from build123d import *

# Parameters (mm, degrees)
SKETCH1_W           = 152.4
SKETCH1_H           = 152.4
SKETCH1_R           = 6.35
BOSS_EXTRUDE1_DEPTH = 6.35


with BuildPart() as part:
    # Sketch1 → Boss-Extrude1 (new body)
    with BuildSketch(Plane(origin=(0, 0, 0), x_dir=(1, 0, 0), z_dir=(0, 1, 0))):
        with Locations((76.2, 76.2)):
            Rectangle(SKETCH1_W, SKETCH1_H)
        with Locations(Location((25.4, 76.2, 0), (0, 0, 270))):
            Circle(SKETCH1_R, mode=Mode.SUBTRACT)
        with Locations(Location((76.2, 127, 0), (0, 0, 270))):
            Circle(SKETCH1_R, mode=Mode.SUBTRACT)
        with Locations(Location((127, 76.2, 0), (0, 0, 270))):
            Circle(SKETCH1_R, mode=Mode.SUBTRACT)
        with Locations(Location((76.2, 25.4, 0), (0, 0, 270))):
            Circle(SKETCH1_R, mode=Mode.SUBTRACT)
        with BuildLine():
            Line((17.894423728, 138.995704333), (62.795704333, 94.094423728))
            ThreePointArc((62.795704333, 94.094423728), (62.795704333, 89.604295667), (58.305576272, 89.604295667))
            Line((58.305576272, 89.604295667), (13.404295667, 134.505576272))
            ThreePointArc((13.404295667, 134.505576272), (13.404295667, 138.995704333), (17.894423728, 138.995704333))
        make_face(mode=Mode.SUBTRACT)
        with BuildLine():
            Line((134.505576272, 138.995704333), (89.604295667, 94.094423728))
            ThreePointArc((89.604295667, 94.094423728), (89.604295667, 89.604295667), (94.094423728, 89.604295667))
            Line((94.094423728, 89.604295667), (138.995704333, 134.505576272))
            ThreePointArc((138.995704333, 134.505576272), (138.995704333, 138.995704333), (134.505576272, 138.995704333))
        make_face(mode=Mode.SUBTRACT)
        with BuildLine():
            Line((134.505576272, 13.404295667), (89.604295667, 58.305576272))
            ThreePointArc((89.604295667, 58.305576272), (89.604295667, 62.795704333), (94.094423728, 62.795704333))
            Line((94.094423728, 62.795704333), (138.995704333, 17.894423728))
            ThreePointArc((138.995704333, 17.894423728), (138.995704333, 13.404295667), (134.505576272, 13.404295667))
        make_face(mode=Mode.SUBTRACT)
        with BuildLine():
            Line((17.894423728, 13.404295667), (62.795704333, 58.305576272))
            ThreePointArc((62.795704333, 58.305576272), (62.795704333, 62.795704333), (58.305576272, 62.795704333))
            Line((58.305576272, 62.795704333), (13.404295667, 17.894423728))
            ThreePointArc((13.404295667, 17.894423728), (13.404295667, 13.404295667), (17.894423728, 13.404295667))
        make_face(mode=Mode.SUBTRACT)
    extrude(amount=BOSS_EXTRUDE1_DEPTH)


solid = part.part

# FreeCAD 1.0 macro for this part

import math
import FreeCAD as App
import Part
import Sketcher

V = App.Vector
Q = App.Units.Quantity

doc = App.newDocument("Part")
body = doc.addObject("PartDesign::Body", "Body")

sketch1 = body.newObject("Sketcher::SketchObject", "Sketch")
sketch1.AttachmentSupport = (doc.getObject("XZ_Plane"), [""])
sketch1.MapMode = "FlatFace"
sketch1.addGeometry([
    Part.LineSegment(V(0, -152.4, 0), V(0, 0, 0)),
    Part.LineSegment(V(0, 0, 0), V(152.4, 0, 0)),
    Part.LineSegment(V(152.4, 0, 0), V(152.4, -152.4, 0)),
    Part.LineSegment(V(152.4, -152.4, 0), V(0, -152.4, 0)),
    Part.LineSegment(V(62.795704, -58.305576, 0), V(17.894424, -13.404296, 0)),
    Part.ArcOfCircle(Part.Circle(V(15.64936, -15.64936, 0), V(0, 0, 1), 3.175), math.radians(45), math.radians(225)),
    Part.LineSegment(V(13.404296, -17.894424, 0), V(58.305576, -62.795704, 0)),
    Part.ArcOfCircle(Part.Circle(V(60.55064, -60.55064, 0), V(0, 0, 1), 3.175), math.radians(-135), math.radians(45)),
    Part.Circle(V(76.2, -25.4, 0), V(0, 0, 1), 6.35),
    Part.ArcOfCircle(Part.Circle(V(136.75064, -15.64936, 0), V(0, 0, 1), 3.175), math.radians(-45), math.radians(135)),
    Part.LineSegment(V(134.505576, -13.404296, 0), V(89.604296, -58.305576, 0)),
    Part.ArcOfCircle(Part.Circle(V(91.84936, -60.55064, 0), V(0, 0, 1), 3.175), math.radians(135), math.radians(315)),
    Part.LineSegment(V(94.094424, -62.795704, 0), V(138.995704, -17.894424, 0)),
    Part.Circle(V(25.4, -76.2, 0), V(0, 0, 1), 6.35),
    Part.ArcOfCircle(Part.Circle(V(15.64936, -136.75064, 0), V(0, 0, 1), 3.175), math.radians(135), math.radians(315)),
    Part.LineSegment(V(17.894424, -138.995704, 0), V(62.795704, -94.094424, 0)),
    Part.ArcOfCircle(Part.Circle(V(60.55064, -91.84936, 0), V(0, 0, 1), 3.175), math.radians(-45), math.radians(135)),
    Part.LineSegment(V(58.305576, -89.604296, 0), V(13.404296, -134.505576, 0)),
    Part.Circle(V(127, -76.2, 0), V(0, 0, 1), 6.35),
    Part.Circle(V(76.2, -127, 0), V(0, 0, 1), 6.35),
    Part.LineSegment(V(89.604296, -94.094424, 0), V(134.505576, -138.995704, 0)),
    Part.ArcOfCircle(Part.Circle(V(136.75064, -136.75064, 0), V(0, 0, 1), 3.175), math.radians(-135), math.radians(45)),
    Part.LineSegment(V(138.995704, -134.505576, 0), V(94.094424, -89.604296, 0)),
    Part.ArcOfCircle(Part.Circle(V(91.84936, -91.84936, 0), V(0, 0, 1), 3.175), math.radians(45), math.radians(225)),
], False)
sketch1.addConstraint([
    Sketcher.Constraint("Coincident", 0, 2, 1, 1),
    Sketcher.Constraint("Coincident", 1, 2, 2, 1),
    Sketcher.Constraint("Coincident", 2, 2, 3, 1),
    Sketcher.Constraint("Coincident", 3, 2, 0, 1),
    Sketcher.Constraint("Tangent", 4, 2, 5, 1),
    Sketcher.Constraint("Tangent", 5, 2, 6, 1),
    Sketcher.Constraint("Tangent", 6, 2, 7, 1),
    Sketcher.Constraint("Tangent", 7, 2, 4, 1),
    Sketcher.Constraint("Tangent", 9, 2, 10, 1),
    Sketcher.Constraint("Tangent", 10, 2, 11, 1),
    Sketcher.Constraint("Tangent", 11, 2, 12, 1),
    Sketcher.Constraint("Tangent", 12, 2, 9, 1),
    Sketcher.Constraint("Tangent", 14, 2, 15, 1),
    Sketcher.Constraint("Tangent", 15, 2, 16, 1),
    Sketcher.Constraint("Tangent", 16, 2, 17, 1),
    Sketcher.Constraint("Tangent", 17, 2, 14, 1),
    Sketcher.Constraint("Tangent", 20, 2, 21, 1),
    Sketcher.Constraint("Tangent", 21, 2, 22, 1),
    Sketcher.Constraint("Tangent", 22, 2, 23, 1),
    Sketcher.Constraint("Tangent", 23, 2, 20, 1),
    Sketcher.Constraint("Vertical", 0),
    Sketcher.Constraint("Horizontal", 1),
    Sketcher.Constraint("Vertical", 2),
    Sketcher.Constraint("Horizontal", 3),
    Sketcher.Constraint("Coincident", 0, 2, -1, 1),
    Sketcher.Constraint("Equal", 5, 7),
    Sketcher.Constraint("Equal", 7, 9),
    Sketcher.Constraint("Equal", 9, 11),
    Sketcher.Constraint("Equal", 8, 13),
    Sketcher.Constraint("Equal", 11, 14),
    Sketcher.Constraint("Equal", 14, 16),
    Sketcher.Constraint("Equal", 13, 18),
    Sketcher.Constraint("Equal", 18, 19),
    Sketcher.Constraint("Equal", 16, 21),
    Sketcher.Constraint("Equal", 21, 23),
    Sketcher.Constraint("Perpendicular", 6, 10),
    Sketcher.Constraint("Parallel", 12, 15),
    Sketcher.Constraint("Perpendicular", 17, 20),
    Sketcher.Constraint("Horizontal", 5, 3, 9, 3),
    Sketcher.Constraint("Horizontal", 7, 3, 11, 3),
    Sketcher.Constraint("Horizontal", 13, 3, 18, 3),
    Sketcher.Constraint("Horizontal", 14, 3, 21, 3),
    Sketcher.Constraint("Horizontal", 16, 3, 23, 3),
    Sketcher.Constraint("Horizontal", 4, 2, 9, 2),
    Sketcher.Constraint("Vertical", 5, 3, 14, 3),
    Sketcher.Constraint("Vertical", 7, 3, 16, 3),
    Sketcher.Constraint("Vertical", 8, 3, 19, 3),
    Sketcher.Constraint("Vertical", 9, 3, 21, 3),
    Sketcher.Constraint("Equal", 3, 0),
    Sketcher.Constraint("Diameter", 8, Q("0.5 in")),
    Sketcher.Constraint("DistanceX", 1, 1, 1, 2, Q("6 in")),
    Sketcher.Constraint("DistanceX", -1, 1, 8, 3, Q("3 in")),
    Sketcher.Constraint("DistanceY", 8, 3, -1, 1, Q("1 in")),
    Sketcher.Constraint("DistanceX", -1, 1, 13, 3, Q("1 in")),
    Sketcher.Constraint("DistanceY", 13, 3, -1, 1, Q("3 in")),
    Sketcher.Constraint("DistanceX", -1, 1, 18, 3, Q("5 in")),
    Sketcher.Constraint("DistanceY", 19, 3, -1, 1, Q("5 in")),
    Sketcher.Constraint("Radius", 5, Q("0.125 in")),
    Sketcher.Constraint("DistanceX", 7, 3, 9, 3, Q("3 in")),
    Sketcher.Constraint("DistanceY", 14, 3, 7, 3, Q("3 in")),
    Sketcher.Constraint("Distance", 4, Q("2.5 in")),
    Sketcher.Constraint("DistanceX", -1, 1, 5, 3, Q("15.64936 mm")),
    Sketcher.Constraint("DistanceY", 5, 3, -1, 1, Q("15.64936 mm")),
])
pad1 = body.newObject("PartDesign::Pad", "Pad")
pad1.Profile = sketch1
pad1.Length = Q("0.25 in")
pad1.Reversed = True

doc.recompute()
